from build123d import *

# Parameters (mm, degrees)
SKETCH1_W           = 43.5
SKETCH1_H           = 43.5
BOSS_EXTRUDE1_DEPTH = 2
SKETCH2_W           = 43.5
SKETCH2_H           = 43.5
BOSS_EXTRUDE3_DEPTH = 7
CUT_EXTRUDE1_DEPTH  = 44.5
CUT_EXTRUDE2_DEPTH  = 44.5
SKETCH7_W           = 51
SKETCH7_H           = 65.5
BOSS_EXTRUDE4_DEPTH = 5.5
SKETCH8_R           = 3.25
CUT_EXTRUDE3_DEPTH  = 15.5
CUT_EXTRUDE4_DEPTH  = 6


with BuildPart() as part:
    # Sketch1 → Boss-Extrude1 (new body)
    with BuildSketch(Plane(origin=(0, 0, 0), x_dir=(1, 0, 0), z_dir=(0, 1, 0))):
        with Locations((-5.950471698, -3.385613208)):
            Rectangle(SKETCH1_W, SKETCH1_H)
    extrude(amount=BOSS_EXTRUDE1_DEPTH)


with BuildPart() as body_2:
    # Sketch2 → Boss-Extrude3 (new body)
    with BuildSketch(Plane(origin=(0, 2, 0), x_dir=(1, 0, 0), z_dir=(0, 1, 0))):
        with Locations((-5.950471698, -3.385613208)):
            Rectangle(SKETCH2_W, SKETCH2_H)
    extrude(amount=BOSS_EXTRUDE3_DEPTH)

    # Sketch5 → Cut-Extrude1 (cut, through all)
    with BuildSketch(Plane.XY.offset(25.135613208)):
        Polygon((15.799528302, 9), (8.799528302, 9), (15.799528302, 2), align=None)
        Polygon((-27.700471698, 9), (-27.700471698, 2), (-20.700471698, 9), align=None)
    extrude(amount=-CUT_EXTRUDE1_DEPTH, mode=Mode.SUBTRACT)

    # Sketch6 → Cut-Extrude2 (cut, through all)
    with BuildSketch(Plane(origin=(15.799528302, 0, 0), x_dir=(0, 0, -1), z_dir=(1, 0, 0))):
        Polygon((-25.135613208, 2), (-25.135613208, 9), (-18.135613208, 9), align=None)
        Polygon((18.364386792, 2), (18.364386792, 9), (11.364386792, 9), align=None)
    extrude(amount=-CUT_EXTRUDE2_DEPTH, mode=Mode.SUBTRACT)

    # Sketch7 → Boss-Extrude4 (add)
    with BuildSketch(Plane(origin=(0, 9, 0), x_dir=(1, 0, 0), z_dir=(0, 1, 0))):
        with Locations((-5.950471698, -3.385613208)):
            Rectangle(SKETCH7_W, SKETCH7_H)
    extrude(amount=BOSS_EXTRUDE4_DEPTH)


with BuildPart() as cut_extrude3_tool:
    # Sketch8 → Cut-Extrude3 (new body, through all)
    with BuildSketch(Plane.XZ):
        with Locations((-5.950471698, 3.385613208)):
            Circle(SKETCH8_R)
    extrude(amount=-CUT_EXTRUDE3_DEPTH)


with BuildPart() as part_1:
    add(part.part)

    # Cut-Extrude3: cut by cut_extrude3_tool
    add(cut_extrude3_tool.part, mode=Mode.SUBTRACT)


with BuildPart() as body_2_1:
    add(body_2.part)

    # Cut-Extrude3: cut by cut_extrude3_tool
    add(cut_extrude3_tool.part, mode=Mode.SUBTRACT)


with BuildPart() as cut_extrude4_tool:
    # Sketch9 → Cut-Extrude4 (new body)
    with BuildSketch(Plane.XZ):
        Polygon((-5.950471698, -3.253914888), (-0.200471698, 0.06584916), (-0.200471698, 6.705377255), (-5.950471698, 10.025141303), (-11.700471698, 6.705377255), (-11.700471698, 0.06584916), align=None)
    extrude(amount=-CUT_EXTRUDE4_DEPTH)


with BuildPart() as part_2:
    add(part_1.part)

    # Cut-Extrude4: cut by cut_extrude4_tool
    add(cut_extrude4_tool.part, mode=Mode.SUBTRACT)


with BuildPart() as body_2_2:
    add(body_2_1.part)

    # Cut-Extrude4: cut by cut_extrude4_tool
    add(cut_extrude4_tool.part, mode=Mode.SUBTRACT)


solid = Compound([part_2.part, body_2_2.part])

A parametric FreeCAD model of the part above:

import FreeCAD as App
import Part
import Sketcher

V = App.Vector
Q = App.Units.Quantity


def add_polygon(sketch, points):
    """Adds a closed chain of lines whose ends are joined by coincident constraints."""
    first, n = sketch.GeometryCount, len(points)
    for a, b in zip(points, points[1:] + points[:1]):
        sketch.addGeometry(Part.LineSegment(App.Vector(*a, 0), App.Vector(*b, 0)), False)
    for i in range(n):
        sketch.addConstraint(Sketcher.Constraint("Coincident", first + i, 2, first + (i + 1) % n, 1))

doc = App.newDocument("Part")
body = doc.addObject("PartDesign::Body", "Body")

# Sketch on XZ plane
sketch1 = body.newObject("Sketcher::SketchObject", "Sketch")
sketch1.AttachmentSupport = (doc.getObject("XZ_Plane"), [""])
sketch1.MapMode = "FlatFace"
add_polygon(sketch1, [(-28, -18), (-28, 25), (16, 25), (16, -18)])  # lines 0-3
sketch1.addConstraint(Sketcher.Constraint("Vertical", 0))
sketch1.addConstraint(Sketcher.Constraint("Horizontal", 1))
sketch1.addConstraint(Sketcher.Constraint("Vertical", 2))
sketch1.addConstraint(Sketcher.Constraint("Horizontal", 3))
sketch1.addConstraint(Sketcher.Constraint("Equal", 3, 0))
sketch1.addConstraint(Sketcher.Constraint("DistanceX", 1, 1, 1, 2, 43.5))
sketch1.addConstraint(Sketcher.Constraint("DistanceX", 0, 2, -1, 1, 27.700472))
sketch1.addConstraint(Sketcher.Constraint("DistanceY", -1, 1, 0, 2, 25.135613))
pad1 = body.newObject("PartDesign::Pad", "Pad")
pad1.Profile = sketch1
pad1.Length = 2
pad1.Reversed = True
body2 = doc.addObject("PartDesign::Body", "Body001")

# Sketch on XZ plane
sketch2 = body2.newObject("Sketcher::SketchObject", "Sketch001")
sketch2.AttachmentSupport = (doc.getObject("XZ_Plane001"), [""])
sketch2.MapMode = "FlatFace"
sketch2.AttachmentOffset = App.Placement(V(0, 0, -2), App.Rotation())
add_polygon(sketch2, [(-28, -18), (-28, 25), (16, 25), (16, -18)])  # lines 0-3
sketch2.addConstraint(Sketcher.Constraint("Vertical", 0))
sketch2.addConstraint(Sketcher.Constraint("Horizontal", 1))
sketch2.addConstraint(Sketcher.Constraint("Vertical", 2))
sketch2.addConstraint(Sketcher.Constraint("Horizontal", 3))
sketch2.addConstraint(Sketcher.Constraint("Equal", 3, 0))
sketch2.addConstraint(Sketcher.Constraint("DistanceX", 1, 1, 1, 2, 43.5))
sketch2.addConstraint(Sketcher.Constraint("DistanceX", 0, 2, -1, 1, 27.700472))
sketch2.addConstraint(Sketcher.Constraint("DistanceY", -1, 1, 0, 2, 25.135613))
pad2 = body2.newObject("PartDesign::Pad", "Pad001")
pad2.Profile = sketch2
pad2.Length = 7
pad2.Reversed = True

# Sketch on XY plane
sketch3 = body2.newObject("Sketcher::SketchObject", "Sketch002")
sketch3.AttachmentSupport = (doc.getObject("XY_Plane001"), [""])
sketch3.MapMode = "FlatFace"
sketch3.AttachmentOffset = App.Placement(V(0, 0, 25.135613), App.Rotation())
add_polygon(sketch3, [(16, 9), (9, 9), (16, 2)])  # lines 0-2
add_polygon(sketch3, [(-28, 9), (-28, 2), (-21, 9)])  # lines 3-5
sketch3.addConstraint(Sketcher.Constraint("Horizontal", 0))
sketch3.addConstraint(Sketcher.Constraint("Vertical", 2))
sketch3.addConstraint(Sketcher.Constraint("Vertical", 3))
sketch3.addConstraint(Sketcher.Constraint("Horizontal", 5))
sketch3.addConstraint(Sketcher.Constraint("Perpendicular", 1, 4))
sketch3.addConstraint(Sketcher.Constraint("Horizontal", 1, 2, 3, 2))
sketch3.addConstraint(Sketcher.Constraint("Horizontal", 2, 2, 4, 2))
sketch3.addConstraint(Sketcher.Constraint("Equal", 0, 5))
sketch3.addConstraint(Sketcher.Constraint("DistanceX", 0, 2, 0, 1, 7.0))
sketch3.addConstraint(Sketcher.Constraint("DistanceY", -1, 1, 0, 2, 9.0))
sketch3.addConstraint(Sketcher.Constraint("DistanceX", 3, 2, 0, 2, 36.5))
sketch3.addConstraint(Sketcher.Constraint("DistanceX", -1, 1, 0, 2, 8.799528))
pocket1 = body2.newObject("PartDesign::Pocket", "Pocket")
pocket1.Profile = sketch3
pocket1.Type = "ThroughAll"

# Sketch on YZ plane
sketch4 = body2.newObject("Sketcher::SketchObject", "Sketch003")
sketch4.AttachmentSupport = (doc.getObject("YZ_Plane001"), [""])
sketch4.MapMode = "FlatFace"
sketch4.AttachmentOffset = App.Placement(V(0, 0, 15.799528), App.Rotation())
add_polygon(sketch4, [(9, 25), (2, 25), (9, 18)])  # lines 0-2
add_polygon(sketch4, [(2, -18), (9, -18), (9, -11)])  # lines 3-5
sketch4.addConstraint(Sketcher.Constraint("Horizontal", 0))
sketch4.addConstraint(Sketcher.Constraint("Vertical", 2))
sketch4.addConstraint(Sketcher.Constraint("Horizontal", 3))
sketch4.addConstraint(Sketcher.Constraint("Vertical", 4))
sketch4.addConstraint(Sketcher.Constraint("Perpendicular", 1, 5))
sketch4.addConstraint(Sketcher.Constraint("Vertical", 2, 2, 3, 2))
sketch4.addConstraint(Sketcher.Constraint("Vertical", 0, 2, 5, 2))
sketch4.addConstraint(Sketcher.Constraint("Equal", 3, 2))
sketch4.addConstraint(Sketcher.Constraint("DistanceX", 0, 2, 0, 1, 7.0))
sketch4.addConstraint(Sketcher.Constraint("DistanceX", -1, 1, 0, 2, 2.0))
sketch4.addConstraint(Sketcher.Constraint("DistanceY", 3, 2, 1, 2, 36.5))
sketch4.addConstraint(Sketcher.Constraint("DistanceY", -1, 1, 0, 2, 25.135613))
pocket2 = body2.newObject("PartDesign::Pocket", "Pocket001")
pocket2.Profile = sketch4
pocket2.Type = "ThroughAll"

# Sketch on XZ plane
sketch5 = body2.newObject("Sketcher::SketchObject", "Sketch004")
sketch5.AttachmentSupport = (doc.getObject("XZ_Plane001"), [""])
sketch5.MapMode = "FlatFace"
sketch5.AttachmentOffset = App.Placement(V(0, 0, -9), App.Rotation())
add_polygon(sketch5, [(-31, -29), (-31, 36), (20, 36), (20, -29)])  # lines 0-3
sketch5.addConstraint(Sketcher.Constraint("Vertical", 0))
sketch5.addConstraint(Sketcher.Constraint("Horizontal", 1))
sketch5.addConstraint(Sketcher.Constraint("Vertical", 2))
sketch5.addConstraint(Sketcher.Constraint("Horizontal", 3))
sketch5.addConstraint(Sketcher.Constraint("DistanceX", 1, 1, 1, 2, 51.0))
sketch5.addConstraint(Sketcher.Constraint("DistanceY", 0, 1, 0, 2, 65.5))
sketch5.addConstraint(Sketcher.Constraint("DistanceX", 0, 2, -1, 1, 31.450472))
sketch5.addConstraint(Sketcher.Constraint("DistanceY", -1, 1, 0, 2, 36.135613))
pad3 = body2.newObject("PartDesign::Pad", "Pad002")
pad3.Profile = sketch5
pad3.Length = 5.5
pad3.Reversed = True
body3 = doc.addObject("PartDesign::Body", "Body002")

# Sketch on XZ plane
sketch6 = body3.newObject("Sketcher::SketchObject", "Sketch005")
sketch6.AttachmentSupport = (doc.getObject("XZ_Plane002"), [""])
sketch6.MapMode = "FlatFace"
sketch6.addGeometry(Part.Circle(V(-6, 3.4, 0), V(0, 0, 1), 3.2), False)
sketch6.addConstraint(Sketcher.Constraint("Diameter", 0, 6.5))
sketch6.addConstraint(Sketcher.Constraint("DistanceX", 0, 3, -1, 1, 5.950472))
sketch6.addConstraint(Sketcher.Constraint("DistanceY", -1, 1, 0, 3, 3.385613))
pad4 = body3.newObject("PartDesign::Pad", "Pad003")
pad4.Profile = sketch6
pad4.Length = 15.5
pad4.Reversed = True
doc.recompute()

body4 = doc.addObject("PartDesign::Body", "Body003")
body4.BaseFeature = body3
boolean = body.newObject("PartDesign::Boolean", "Boolean")
boolean.Type = "Cut"
boolean.addObjects([body4])
doc.recompute()

boolean2 = body2.newObject("PartDesign::Boolean", "Boolean001")
boolean2.Type = "Cut"
boolean2.addObjects([body3])
body5 = doc.addObject("PartDesign::Body", "Body004")

# Sketch on XZ plane
sketch7 = body5.newObject("Sketcher::SketchObject", "Sketch006")
sketch7.AttachmentSupport = (doc.getObject("XZ_Plane004"), [""])
sketch7.MapMode = "FlatFace"
add_polygon(sketch7, [(-6, -3), (0, 0), (0, 7), (-6, 10), (-12, 7), (-12, 0)])  # lines 0-5
sketch7.addConstraint(Sketcher.Constraint("Vertical", 1))
sketch7.addConstraint(Sketcher.Constraint("Vertical", 4))
sketch7.addConstraint(Sketcher.Constraint("Parallel", 0, 3))
sketch7.addConstraint(Sketcher.Constraint("Parallel", 2, 5))
sketch7.addConstraint(Sketcher.Constraint("Horizontal", 1, 2, 3, 2))
sketch7.addConstraint(Sketcher.Constraint("Horizontal", 0, 2, 4, 2))
sketch7.addConstraint(Sketcher.Constraint("Vertical", 2, 2, 5, 2))
sketch7.addConstraint(Sketcher.Constraint("Angle", 0, Q("30 deg")))
sketch7.addConstraint(Sketcher.Constraint("DistanceX", 3, 2, 1, 2, 11.5))
sketch7.addConstraint(Sketcher.Constraint("DistanceY", 1, 1, 1, 2, 6.639528))
sketch7.addConstraint(Sketcher.Constraint("DistanceX", 0, 2, -1, 1, 0.200472))
sketch7.addConstraint(Sketcher.Constraint("DistanceY", -1, 1, 0, 2, 0.065849))
pad5 = body5.newObject("PartDesign::Pad", "Pad004")
pad5.Profile = sketch7
pad5.Length = 6
pad5.Reversed = True
doc.recompute()

body6 = doc.addObject("PartDesign::Body", "Body005")
body6.BaseFeature = body5
boolean3 = body.newObject("PartDesign::Boolean", "Boolean002")
boolean3.Type = "Cut"
boolean3.addObjects([body6])
doc.recompute()

boolean4 = body2.newObject("PartDesign::Boolean", "Boolean003")
boolean4.Type = "Cut"
boolean4.addObjects([body5])

doc.recompute()
